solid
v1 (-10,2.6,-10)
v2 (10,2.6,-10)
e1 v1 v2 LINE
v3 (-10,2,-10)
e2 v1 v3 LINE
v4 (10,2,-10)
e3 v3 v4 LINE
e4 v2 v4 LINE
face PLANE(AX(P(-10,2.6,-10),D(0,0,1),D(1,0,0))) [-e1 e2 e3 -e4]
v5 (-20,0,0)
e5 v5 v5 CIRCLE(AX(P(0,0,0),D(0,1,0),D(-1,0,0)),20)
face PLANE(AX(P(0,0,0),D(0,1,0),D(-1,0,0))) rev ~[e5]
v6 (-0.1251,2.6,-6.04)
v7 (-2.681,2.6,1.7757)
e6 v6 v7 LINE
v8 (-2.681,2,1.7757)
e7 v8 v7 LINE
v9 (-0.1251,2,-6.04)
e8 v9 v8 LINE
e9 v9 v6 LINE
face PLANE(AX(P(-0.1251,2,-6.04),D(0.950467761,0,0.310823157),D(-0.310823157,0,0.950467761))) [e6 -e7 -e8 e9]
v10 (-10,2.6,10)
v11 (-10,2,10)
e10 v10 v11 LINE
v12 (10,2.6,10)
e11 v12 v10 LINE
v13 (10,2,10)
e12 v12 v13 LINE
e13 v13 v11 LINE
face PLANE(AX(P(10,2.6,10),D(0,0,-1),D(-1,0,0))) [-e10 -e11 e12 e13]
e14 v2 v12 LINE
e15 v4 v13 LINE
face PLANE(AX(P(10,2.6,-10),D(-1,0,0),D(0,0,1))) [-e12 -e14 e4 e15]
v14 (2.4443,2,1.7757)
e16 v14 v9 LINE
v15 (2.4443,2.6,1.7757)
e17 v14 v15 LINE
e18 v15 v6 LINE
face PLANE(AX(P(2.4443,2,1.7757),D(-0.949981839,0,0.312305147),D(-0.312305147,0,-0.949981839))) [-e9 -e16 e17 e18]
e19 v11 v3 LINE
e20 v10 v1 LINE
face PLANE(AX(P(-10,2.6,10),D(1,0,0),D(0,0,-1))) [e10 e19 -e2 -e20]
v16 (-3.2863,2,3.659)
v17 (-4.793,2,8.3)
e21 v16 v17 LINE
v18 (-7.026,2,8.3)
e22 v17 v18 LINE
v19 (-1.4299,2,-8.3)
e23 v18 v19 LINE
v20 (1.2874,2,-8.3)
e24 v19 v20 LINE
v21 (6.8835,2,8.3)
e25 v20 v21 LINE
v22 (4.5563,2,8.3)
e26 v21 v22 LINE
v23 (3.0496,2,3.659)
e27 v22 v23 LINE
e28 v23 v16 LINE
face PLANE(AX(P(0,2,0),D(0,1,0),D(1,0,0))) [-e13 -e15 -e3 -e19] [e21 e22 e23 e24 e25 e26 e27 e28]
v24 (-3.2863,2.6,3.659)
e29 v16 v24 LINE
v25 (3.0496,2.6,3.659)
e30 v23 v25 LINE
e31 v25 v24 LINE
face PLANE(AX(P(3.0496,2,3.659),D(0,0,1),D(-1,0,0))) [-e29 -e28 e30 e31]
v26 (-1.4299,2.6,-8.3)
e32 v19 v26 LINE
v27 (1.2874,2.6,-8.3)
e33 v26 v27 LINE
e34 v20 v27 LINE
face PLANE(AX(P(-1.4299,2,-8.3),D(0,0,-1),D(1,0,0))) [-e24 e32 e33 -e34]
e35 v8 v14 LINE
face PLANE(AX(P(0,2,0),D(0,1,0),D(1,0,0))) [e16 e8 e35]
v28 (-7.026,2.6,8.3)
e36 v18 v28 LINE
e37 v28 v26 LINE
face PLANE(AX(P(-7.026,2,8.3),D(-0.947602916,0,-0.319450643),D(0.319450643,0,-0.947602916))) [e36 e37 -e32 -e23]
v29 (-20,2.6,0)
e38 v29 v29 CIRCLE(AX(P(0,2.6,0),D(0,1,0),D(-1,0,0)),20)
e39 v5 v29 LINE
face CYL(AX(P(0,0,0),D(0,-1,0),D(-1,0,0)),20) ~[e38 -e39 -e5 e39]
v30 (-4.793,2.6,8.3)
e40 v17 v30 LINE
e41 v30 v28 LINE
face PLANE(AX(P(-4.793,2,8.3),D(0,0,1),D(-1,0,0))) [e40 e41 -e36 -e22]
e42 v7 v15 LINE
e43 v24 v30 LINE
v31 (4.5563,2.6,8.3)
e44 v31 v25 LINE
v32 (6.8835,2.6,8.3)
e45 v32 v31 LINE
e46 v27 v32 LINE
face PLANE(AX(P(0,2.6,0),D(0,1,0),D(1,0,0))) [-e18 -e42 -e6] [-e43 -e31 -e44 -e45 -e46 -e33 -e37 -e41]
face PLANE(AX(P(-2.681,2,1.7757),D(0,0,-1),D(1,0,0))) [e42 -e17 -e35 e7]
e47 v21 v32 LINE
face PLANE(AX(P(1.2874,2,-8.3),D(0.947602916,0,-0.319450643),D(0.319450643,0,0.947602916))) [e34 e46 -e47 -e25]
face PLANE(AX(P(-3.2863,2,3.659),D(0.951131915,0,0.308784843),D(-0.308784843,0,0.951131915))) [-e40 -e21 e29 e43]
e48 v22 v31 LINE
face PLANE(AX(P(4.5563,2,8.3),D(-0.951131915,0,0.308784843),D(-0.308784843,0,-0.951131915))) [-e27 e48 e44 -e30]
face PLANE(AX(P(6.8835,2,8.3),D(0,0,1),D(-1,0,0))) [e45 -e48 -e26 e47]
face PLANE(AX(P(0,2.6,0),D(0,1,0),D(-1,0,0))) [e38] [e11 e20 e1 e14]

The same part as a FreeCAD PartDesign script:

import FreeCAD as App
import Part
import Sketcher
from FreeCAD import Vector
Q = App.Units.Quantity

doc = App.newDocument("Part")
body = doc.addObject("PartDesign::Body", "Body")

sketch1 = body.newObject("Sketcher::SketchObject", "Sketch")
sketch1.AttachmentSupport = (doc.getObject("XZ_Plane"), [""])
sketch1.MapMode = "FlatFace"
sketch1.addGeometry(Part.Circle(Vector(0, 0, 0), Vector(0, 0, 1), 20), False)
sketch1.addConstraint(Sketcher.Constraint("Coincident", 0, 3, -1, 1))
sketch1.addConstraint(Sketcher.Constraint("Diameter", 0, 40.0))
pad1 = body.newObject("PartDesign::Pad", "Pad")
pad1.Profile = sketch1
pad1.Length = 2.6
pad1.Reversed = True

sketch2 = body.newObject("Sketcher::SketchObject", "Sketch001")
sketch2.AttachmentSupport = (doc.getObject("XZ_Plane"), [""])
sketch2.MapMode = "FlatFace"
sketch2.AttachmentOffset = App.Placement(Vector(0, 0, -2.6), App.Rotation())
sketch2.addGeometry(Part.LineSegment(Vector(-10, -10, 0), Vector(-10, 10, 0)), False)
sketch2.addGeometry(Part.LineSegment(Vector(-10, 10, 0), Vector(10, 10, 0)), False)
sketch2.addGeometry(Part.LineSegment(Vector(10, 10, 0), Vector(10, -10, 0)), False)
sketch2.addGeometry(Part.LineSegment(Vector(10, -10, 0), Vector(-10, -10, 0)), False)
sketch2.addConstraint(Sketcher.Constraint("Coincident", 0, 2, 1, 1))
sketch2.addConstraint(Sketcher.Constraint("Coincident", 1, 2, 2, 1))
sketch2.addConstraint(Sketcher.Constraint("Coincident", 2, 2, 3, 1))
sketch2.addConstraint(Sketcher.Constraint("Coincident", 3, 2, 0, 1))
sketch2.addConstraint(Sketcher.Constraint("Vertical", 0))
sketch2.addConstraint(Sketcher.Constraint("Horizontal", 1))
sketch2.addConstraint(Sketcher.Constraint("Vertical", 2))
sketch2.addConstraint(Sketcher.Constraint("Horizontal", 3))
sketch2.addConstraint(Sketcher.Constraint("Symmetric", 0, 2, 2, 2, -1, 1))
sketch2.addConstraint(Sketcher.Constraint("Equal", 3, 0))
sketch2.addConstraint(Sketcher.Constraint("DistanceX", 1, 1, 1, 2, 20.0))
pocket1 = body.newObject("PartDesign::Pocket", "Pocket")
pocket1.Profile = sketch2
pocket1.Length = 0.6
pocket1.Reversed = True

sketch3 = body.newObject("Sketcher::SketchObject", "Sketch002")
sketch3.AttachmentSupport = (doc.getObject("XZ_Plane"), [""])
sketch3.MapMode = "FlatFace"
sketch3.AttachmentOffset = App.Placement(Vector(0, 0, -2), App.Rotation())
sketch3.addGeometry(Part.LineSegment(Vector(-1.4, -8.3, 0), Vector(-7, 8.3, 0)), False)
sketch3.addGeometry(Part.LineSegment(Vector(-7, 8.3, 0), Vector(-4.8, 8.3, 0)), False)
sketch3.addGeometry(Part.LineSegment(Vector(-4.8, 8.3, 0), Vector(-3.3, 3.7, 0)), False)
sketch3.addGeometry(Part.LineSegment(Vector(-3.3, 3.7, 0), Vector(3, 3.7, 0)), False)
sketch3.addGeometry(Part.LineSegment(Vector(3, 3.7, 0), Vector(4.6, 8.3, 0)), False)
sketch3.addGeometry(Part.LineSegment(Vector(4.6, 8.3, 0), Vector(6.9, 8.3, 0)), False)
sketch3.addGeometry(Part.LineSegment(Vector(6.9, 8.3, 0), Vector(1.3, -8.3, 0)), False)
sketch3.addGeometry(Part.LineSegment(Vector(1.3, -8.3, 0), Vector(-1.4, -8.3, 0)), False)
sketch3.addGeometry(Part.LineSegment(Vector(-0.1, -6, 0), Vector(2.4, 1.8, 0)), False)
sketch3.addGeometry(Part.LineSegment(Vector(2.4, 1.8, 0), Vector(-2.7, 1.8, 0)), False)
sketch3.addGeometry(Part.LineSegment(Vector(-2.7, 1.8, 0), Vector(-0.1, -6, 0)), False)
sketch3.addConstraint(Sketcher.Constraint("Coincident", 0, 2, 1, 1))
sketch3.addConstraint(Sketcher.Constraint("Coincident", 1, 2, 2, 1))
sketch3.addConstraint(Sketcher.Constraint("Coincident", 2, 2, 3, 1))
sketch3.addConstraint(Sketcher.Constraint("Coincident", 3, 2, 4, 1))
sketch3.addConstraint(Sketcher.Constraint("Coincident", 4, 2, 5, 1))
sketch3.addConstraint(Sketcher.Constraint("Coincident", 5, 2, 6, 1))
sketch3.addConstraint(Sketcher.Constraint("Coincident", 6, 2, 7, 1))
sketch3.addConstraint(Sketcher.Constraint("Coincident", 7, 2, 0, 1))
sketch3.addConstraint(Sketcher.Constraint("Coincident", 8, 2, 9, 1))
sketch3.addConstraint(Sketcher.Constraint("Coincident", 9, 2, 10, 1))
sketch3.addConstraint(Sketcher.Constraint("Coincident", 10, 2, 8, 1))
sketch3.addConstraint(Sketcher.Constraint("Horizontal", 1))
sketch3.addConstraint(Sketcher.Constraint("Horizontal", 3))
sketch3.addConstraint(Sketcher.Constraint("Horizontal", 5))
sketch3.addConstraint(Sketcher.Constraint("Horizontal", 7))
sketch3.addConstraint(Sketcher.Constraint("Horizontal", 9))
sketch3.addConstraint(Sketcher.Constraint("Horizontal", 1, 2, 4, 2))
sketch3.addConstraint(Sketcher.Constraint("Equal", 2, 4))
sketch3.addConstraint(Sketcher.Constraint("Equal", 0, 6))
sketch3.addConstraint(Sketcher.Constraint("DistanceY", -1, 1, 0, 2, 8.3))
sketch3.addConstraint(Sketcher.Constraint("DistanceY", 6, 2, -1, 1, 8.3))
sketch3.addConstraint(Sketcher.Constraint("Angle", 0, Q("108.6297 deg")))
sketch3.addConstraint(Sketcher.Constraint("Angle", 10, Q("-71.8912 deg")))
sketch3.addConstraint(Sketcher.Constraint("DistanceX", 1, 1, 1, 2, 2.233))
sketch3.addConstraint(Sketcher.Constraint("DistanceX", 3, 1, 3, 2, 6.336))
sketch3.addConstraint(Sketcher.Constraint("DistanceX", 7, 2, -1, 1, 1.43))
sketch3.addConstraint(Sketcher.Constraint("DistanceY", 10, 2, -1, 1, 6.04))
sketch3.addConstraint(Sketcher.Constraint("Distance", 10, 8.223))
sketch3.addConstraint(Sketcher.Constraint("DistanceX", 5, 1, 5, 2, 2.3272))
sketch3.addConstraint(Sketcher.Constraint("DistanceX", 7, 2, 7, 1, 2.7173))
sketch3.addConstraint(Sketcher.Constraint("DistanceX", 9, 2, 9, 1, 5.1253))
sketch3.addConstraint(Sketcher.Constraint("DistanceY", -1, 1, 2, 2, 3.659))
sketch3.addConstraint(Sketcher.Constraint("DistanceX", 9, 2, -1, 1, 2.681))
pad2 = body.newObject("PartDesign::Pad", "Pad001")
pad2.Profile = sketch3
pad2.Length = 0.6
pad2.Reversed = True

doc.recompute()
